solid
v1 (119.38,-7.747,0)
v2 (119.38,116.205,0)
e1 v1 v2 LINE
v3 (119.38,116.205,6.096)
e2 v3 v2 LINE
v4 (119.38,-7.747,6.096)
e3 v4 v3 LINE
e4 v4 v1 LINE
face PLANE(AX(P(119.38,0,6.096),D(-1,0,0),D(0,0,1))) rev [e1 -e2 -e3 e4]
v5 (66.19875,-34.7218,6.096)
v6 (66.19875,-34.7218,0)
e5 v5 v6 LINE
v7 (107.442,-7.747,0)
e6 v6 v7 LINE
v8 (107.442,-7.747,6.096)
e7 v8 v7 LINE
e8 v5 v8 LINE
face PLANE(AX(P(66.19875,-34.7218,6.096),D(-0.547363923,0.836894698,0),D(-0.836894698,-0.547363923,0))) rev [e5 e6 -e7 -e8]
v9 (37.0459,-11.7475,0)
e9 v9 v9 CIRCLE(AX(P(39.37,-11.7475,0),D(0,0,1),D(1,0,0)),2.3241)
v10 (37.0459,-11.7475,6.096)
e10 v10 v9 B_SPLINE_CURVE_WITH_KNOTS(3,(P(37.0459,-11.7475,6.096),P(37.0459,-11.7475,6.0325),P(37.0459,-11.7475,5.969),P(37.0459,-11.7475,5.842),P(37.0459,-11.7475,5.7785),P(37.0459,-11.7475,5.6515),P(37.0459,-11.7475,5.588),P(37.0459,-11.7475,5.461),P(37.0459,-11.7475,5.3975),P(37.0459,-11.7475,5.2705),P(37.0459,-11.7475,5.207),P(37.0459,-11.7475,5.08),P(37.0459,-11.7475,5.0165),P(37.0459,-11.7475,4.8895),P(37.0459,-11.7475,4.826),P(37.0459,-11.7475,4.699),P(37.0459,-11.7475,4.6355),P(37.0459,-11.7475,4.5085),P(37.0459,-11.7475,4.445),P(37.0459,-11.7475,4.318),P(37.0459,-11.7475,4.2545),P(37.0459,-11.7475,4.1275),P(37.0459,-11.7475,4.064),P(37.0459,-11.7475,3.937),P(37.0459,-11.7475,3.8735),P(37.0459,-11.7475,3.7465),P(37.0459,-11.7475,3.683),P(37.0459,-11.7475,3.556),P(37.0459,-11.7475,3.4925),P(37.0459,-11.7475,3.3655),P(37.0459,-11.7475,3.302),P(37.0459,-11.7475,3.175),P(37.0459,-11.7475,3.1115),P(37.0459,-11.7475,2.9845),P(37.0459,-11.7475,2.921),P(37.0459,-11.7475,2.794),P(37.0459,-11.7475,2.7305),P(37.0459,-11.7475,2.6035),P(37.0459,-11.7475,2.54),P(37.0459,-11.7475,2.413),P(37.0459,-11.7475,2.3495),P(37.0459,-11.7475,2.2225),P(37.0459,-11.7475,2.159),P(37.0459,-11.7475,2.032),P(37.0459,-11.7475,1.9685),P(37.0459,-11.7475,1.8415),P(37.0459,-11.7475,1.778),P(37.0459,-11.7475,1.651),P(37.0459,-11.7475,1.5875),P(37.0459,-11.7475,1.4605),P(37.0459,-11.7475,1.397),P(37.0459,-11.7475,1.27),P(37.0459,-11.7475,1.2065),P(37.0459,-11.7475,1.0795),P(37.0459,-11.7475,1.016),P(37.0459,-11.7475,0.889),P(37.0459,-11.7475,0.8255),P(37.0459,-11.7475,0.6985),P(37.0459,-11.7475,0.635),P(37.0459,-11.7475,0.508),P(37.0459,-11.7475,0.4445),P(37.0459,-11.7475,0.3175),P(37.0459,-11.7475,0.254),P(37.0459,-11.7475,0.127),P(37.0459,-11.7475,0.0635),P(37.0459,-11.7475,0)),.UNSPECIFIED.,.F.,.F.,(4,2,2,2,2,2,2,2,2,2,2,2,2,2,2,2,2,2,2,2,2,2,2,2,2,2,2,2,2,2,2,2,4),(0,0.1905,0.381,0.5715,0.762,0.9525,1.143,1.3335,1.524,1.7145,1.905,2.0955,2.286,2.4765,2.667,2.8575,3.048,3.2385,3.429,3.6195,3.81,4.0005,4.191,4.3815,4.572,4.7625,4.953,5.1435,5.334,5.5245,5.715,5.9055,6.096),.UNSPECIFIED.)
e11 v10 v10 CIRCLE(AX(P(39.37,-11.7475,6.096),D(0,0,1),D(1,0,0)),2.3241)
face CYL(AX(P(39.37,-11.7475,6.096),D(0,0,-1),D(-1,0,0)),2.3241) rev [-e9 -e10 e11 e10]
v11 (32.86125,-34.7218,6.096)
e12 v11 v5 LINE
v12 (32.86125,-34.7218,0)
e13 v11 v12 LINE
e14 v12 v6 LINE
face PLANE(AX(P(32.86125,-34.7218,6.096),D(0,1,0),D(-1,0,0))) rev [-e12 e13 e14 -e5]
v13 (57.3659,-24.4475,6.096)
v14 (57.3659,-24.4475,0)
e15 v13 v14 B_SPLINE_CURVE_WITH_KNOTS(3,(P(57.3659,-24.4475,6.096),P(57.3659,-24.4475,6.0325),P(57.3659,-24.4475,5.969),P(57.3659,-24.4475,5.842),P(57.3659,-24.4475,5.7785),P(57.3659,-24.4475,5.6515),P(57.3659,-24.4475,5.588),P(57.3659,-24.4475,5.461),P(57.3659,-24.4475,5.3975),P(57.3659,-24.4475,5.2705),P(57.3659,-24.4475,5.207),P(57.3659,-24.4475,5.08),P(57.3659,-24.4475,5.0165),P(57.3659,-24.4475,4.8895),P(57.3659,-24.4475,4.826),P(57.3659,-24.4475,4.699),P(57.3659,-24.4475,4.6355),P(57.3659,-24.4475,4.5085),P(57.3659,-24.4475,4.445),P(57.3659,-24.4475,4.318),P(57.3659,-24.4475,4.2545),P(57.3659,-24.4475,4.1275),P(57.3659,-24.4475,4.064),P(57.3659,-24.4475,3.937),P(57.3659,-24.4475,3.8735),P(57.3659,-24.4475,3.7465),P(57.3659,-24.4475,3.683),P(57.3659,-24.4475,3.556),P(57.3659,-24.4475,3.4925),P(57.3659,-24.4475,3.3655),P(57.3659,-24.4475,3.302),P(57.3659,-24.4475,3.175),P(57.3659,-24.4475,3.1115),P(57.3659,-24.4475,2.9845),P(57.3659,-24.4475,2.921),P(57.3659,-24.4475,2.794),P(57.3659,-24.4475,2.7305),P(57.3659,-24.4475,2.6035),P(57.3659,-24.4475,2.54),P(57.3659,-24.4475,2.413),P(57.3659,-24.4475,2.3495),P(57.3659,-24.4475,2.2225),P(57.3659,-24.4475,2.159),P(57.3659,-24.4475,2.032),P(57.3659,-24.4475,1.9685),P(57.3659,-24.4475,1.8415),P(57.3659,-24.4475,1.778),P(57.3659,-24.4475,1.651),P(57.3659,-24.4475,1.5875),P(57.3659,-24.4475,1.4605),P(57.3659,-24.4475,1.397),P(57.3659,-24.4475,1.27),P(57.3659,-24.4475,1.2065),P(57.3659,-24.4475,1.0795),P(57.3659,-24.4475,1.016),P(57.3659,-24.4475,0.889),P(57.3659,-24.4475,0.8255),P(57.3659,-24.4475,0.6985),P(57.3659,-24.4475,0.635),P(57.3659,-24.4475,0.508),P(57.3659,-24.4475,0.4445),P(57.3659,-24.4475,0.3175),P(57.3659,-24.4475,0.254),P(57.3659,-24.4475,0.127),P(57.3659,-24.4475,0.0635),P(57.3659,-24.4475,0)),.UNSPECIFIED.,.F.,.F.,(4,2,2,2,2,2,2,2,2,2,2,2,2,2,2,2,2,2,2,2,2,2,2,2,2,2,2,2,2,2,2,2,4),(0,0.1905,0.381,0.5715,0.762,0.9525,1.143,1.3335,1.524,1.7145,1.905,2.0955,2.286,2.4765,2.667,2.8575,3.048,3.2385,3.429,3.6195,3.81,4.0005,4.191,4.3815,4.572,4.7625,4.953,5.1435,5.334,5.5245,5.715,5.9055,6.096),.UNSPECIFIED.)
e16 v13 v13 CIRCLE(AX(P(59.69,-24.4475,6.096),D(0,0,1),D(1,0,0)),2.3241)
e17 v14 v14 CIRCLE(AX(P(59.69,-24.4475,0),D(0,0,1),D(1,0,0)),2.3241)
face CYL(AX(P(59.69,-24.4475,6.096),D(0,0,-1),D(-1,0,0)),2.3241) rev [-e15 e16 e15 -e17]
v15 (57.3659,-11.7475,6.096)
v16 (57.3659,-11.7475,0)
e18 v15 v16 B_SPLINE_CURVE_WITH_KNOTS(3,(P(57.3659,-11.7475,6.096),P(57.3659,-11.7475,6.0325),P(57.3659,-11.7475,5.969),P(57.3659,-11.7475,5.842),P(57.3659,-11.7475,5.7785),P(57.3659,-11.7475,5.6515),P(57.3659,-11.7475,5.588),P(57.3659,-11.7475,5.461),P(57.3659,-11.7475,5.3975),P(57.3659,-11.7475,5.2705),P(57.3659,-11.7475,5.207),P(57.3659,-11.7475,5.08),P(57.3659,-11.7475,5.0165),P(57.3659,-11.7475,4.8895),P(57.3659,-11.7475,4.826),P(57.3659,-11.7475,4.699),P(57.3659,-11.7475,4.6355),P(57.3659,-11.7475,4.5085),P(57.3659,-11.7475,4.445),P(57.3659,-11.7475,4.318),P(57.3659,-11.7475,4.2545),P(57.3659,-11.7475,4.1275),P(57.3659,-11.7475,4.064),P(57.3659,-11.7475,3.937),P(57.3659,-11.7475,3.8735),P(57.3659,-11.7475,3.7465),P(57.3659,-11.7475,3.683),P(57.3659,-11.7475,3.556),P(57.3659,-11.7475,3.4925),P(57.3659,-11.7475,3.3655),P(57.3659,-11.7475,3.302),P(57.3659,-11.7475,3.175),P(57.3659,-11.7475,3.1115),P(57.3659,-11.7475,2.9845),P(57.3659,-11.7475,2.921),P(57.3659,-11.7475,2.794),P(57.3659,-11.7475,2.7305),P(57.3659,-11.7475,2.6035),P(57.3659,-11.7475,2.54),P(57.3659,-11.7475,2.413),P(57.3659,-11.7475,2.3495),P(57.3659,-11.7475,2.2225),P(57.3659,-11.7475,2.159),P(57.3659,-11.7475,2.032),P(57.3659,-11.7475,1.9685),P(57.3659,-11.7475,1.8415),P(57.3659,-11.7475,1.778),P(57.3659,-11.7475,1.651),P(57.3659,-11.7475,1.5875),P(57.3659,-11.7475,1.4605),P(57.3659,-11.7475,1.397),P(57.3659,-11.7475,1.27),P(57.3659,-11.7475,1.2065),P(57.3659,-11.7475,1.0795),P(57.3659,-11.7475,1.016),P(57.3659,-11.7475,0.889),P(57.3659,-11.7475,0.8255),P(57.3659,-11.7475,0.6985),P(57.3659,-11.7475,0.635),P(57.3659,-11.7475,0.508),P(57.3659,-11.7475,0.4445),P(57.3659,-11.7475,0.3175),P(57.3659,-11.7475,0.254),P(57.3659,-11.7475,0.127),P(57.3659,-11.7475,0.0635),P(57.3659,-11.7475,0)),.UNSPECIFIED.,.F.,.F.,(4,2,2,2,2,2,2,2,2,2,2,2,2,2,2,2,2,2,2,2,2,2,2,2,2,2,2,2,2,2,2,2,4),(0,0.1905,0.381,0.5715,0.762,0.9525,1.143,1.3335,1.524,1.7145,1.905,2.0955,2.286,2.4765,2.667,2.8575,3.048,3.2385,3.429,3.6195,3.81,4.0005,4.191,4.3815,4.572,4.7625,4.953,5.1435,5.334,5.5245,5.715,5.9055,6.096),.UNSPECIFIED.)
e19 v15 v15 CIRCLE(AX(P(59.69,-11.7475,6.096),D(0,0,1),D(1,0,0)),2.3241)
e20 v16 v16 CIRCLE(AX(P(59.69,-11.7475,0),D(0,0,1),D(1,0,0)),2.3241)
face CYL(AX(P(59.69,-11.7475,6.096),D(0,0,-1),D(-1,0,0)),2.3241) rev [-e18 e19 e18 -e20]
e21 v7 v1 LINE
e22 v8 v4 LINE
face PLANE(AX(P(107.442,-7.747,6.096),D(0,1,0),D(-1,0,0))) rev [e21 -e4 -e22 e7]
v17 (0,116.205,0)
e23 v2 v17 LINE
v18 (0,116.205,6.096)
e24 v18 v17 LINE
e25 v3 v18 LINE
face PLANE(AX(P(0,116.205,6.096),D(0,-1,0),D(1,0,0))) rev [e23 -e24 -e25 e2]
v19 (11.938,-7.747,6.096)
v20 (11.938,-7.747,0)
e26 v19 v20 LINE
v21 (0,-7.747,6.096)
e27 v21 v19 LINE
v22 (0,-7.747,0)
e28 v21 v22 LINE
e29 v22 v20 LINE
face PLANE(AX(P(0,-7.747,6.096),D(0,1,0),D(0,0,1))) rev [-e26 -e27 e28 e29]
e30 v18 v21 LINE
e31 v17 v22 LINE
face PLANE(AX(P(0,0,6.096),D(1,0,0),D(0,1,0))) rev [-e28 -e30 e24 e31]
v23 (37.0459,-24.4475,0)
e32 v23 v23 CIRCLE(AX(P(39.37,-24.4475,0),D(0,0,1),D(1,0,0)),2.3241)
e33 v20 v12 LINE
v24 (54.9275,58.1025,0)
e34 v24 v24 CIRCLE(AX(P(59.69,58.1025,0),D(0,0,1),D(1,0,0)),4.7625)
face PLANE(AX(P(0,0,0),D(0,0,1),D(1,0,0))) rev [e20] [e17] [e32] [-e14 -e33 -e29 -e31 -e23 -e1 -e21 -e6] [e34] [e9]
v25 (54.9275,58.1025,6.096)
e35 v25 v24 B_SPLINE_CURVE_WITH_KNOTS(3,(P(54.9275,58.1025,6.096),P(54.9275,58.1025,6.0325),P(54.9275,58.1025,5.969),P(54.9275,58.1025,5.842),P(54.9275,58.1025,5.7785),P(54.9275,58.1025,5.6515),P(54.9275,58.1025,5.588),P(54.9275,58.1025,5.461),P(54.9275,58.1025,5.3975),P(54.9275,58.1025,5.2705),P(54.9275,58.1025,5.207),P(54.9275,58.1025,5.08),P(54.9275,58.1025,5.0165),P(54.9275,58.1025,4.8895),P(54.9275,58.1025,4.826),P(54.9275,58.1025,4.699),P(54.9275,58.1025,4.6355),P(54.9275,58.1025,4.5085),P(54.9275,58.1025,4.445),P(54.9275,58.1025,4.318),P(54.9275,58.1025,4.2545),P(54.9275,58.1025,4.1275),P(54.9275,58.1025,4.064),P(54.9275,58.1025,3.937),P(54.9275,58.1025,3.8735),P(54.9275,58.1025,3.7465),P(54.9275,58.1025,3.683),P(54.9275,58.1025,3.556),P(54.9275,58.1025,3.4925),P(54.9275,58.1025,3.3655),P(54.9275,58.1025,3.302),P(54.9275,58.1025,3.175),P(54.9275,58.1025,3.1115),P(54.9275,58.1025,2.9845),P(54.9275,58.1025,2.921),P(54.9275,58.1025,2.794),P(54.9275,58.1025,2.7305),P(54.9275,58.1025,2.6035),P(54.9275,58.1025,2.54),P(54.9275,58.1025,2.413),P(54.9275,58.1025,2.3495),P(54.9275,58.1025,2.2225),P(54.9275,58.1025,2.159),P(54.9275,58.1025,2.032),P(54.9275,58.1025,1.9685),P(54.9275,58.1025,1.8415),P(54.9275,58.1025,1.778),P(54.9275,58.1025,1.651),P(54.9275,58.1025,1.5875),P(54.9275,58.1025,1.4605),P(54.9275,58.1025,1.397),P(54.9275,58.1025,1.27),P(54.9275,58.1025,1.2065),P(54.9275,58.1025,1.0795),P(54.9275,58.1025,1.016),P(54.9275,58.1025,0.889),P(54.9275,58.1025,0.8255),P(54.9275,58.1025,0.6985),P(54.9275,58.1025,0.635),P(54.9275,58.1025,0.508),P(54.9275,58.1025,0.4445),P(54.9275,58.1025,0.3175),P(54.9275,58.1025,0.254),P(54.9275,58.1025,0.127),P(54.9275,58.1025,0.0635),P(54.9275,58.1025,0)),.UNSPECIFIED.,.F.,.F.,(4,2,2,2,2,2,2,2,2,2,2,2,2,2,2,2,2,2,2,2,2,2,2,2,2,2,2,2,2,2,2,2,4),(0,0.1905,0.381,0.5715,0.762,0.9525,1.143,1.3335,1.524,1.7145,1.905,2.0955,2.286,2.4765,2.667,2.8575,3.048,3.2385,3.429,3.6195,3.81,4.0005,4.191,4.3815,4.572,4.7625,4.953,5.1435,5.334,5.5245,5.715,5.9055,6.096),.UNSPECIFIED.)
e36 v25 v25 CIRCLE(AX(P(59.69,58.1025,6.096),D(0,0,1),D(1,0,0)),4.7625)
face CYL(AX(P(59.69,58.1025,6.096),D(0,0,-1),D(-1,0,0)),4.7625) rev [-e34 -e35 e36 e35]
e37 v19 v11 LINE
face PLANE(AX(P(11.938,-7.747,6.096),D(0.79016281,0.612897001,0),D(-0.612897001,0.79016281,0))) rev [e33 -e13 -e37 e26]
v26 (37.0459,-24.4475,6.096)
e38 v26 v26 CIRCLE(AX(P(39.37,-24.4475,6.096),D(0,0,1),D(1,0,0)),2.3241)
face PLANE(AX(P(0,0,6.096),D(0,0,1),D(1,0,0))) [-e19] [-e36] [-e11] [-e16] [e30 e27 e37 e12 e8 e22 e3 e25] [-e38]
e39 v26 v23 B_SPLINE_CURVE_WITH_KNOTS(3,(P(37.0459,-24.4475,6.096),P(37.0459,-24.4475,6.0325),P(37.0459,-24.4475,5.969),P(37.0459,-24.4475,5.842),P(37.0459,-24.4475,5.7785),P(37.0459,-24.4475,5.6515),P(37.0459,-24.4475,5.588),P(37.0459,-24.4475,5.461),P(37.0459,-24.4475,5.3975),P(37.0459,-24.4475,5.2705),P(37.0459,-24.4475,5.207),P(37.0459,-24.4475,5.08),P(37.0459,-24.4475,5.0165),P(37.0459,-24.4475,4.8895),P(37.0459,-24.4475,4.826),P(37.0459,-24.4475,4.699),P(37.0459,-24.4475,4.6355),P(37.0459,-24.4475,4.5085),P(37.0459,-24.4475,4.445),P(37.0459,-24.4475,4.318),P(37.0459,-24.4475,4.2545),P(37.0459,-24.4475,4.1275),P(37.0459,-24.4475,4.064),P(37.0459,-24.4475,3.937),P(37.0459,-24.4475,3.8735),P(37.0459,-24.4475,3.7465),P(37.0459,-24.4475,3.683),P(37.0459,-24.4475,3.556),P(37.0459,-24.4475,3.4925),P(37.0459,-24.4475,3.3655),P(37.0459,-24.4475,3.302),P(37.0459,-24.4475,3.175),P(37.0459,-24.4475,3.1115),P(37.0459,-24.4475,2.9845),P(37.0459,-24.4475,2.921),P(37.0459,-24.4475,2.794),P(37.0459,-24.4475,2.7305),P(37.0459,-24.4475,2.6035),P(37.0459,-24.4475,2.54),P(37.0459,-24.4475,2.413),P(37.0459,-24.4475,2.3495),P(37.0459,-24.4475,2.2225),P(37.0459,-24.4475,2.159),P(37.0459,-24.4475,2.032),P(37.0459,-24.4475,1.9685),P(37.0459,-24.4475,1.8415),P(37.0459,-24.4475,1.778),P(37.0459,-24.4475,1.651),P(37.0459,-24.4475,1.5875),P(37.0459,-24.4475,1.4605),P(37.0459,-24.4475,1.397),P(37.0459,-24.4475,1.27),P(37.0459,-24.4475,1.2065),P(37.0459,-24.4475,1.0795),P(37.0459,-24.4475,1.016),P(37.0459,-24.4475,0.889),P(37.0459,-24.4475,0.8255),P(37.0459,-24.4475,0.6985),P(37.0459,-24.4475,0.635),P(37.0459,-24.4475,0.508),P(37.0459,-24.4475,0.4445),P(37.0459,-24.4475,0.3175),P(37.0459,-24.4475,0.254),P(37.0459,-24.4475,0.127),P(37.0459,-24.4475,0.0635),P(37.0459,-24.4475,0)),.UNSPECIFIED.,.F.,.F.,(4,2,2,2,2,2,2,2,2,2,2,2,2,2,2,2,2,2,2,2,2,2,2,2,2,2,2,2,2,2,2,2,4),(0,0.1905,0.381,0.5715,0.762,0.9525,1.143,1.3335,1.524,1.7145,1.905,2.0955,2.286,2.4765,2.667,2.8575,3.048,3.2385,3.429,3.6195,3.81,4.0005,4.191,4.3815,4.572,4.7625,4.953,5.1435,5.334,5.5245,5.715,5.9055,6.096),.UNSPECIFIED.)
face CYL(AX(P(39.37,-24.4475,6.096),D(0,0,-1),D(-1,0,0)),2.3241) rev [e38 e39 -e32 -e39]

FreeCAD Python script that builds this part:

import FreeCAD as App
import Part
import Sketcher
Q = App.Units.Quantity


def add_polygon(sketch, points):
    """Adds a closed chain of lines whose ends are joined by coincident constraints."""
    first, n = sketch.GeometryCount, len(points)
    for a, b in zip(points, points[1:] + points[:1]):
        sketch.addGeometry(Part.LineSegment(App.Vector(*a, 0), App.Vector(*b, 0)), False)
    for i in range(n):
        sketch.addConstraint(Sketcher.Constraint("Coincident", first + i, 2, first + (i + 1) % n, 1))

doc = App.newDocument("Part")
params = doc.addObject("Spreadsheet::Sheet", "Params")
for row, (alias, value) in enumerate([
    ("sketch1_diameter", "0.183 in"),
    ("sketch1_diameter2", "0.375 in"),
    ("sketch1_width", "4.7 in"),
    ("sketch1_width2", "0.47 in"),
    ("sketch1_height", "4.88 in"),
    ("pad1_length", "0.24 in"),
], start=1):
    params.set(f"A{row}", alias)
    params.set(f"B{row}", "=" + value)
    params.setAlias(f"B{row}", alias)

body = doc.addObject("PartDesign::Body", "Body")

# Sketch on XY plane
sketch1 = body.newObject("Sketcher::SketchObject", "Sketch")
sketch1.AttachmentSupport = (doc.getObject("XY_Plane"), [""])
sketch1.MapMode = "FlatFace"
add_polygon(sketch1, [(0, 116.2), (0, -7.7), (11.9, -7.7), (32.9, -34.7), (66.2, -34.7), (107.4, -7.7), (119.4, -7.7), (119.4, 116.2)])  # lines 0-7
sketch1.addGeometry(Part.Circle(App.Vector(59.7, -24.4, 0), App.Vector(0, 0, 1), 2.3), False)  # 8
sketch1.addGeometry(Part.Circle(App.Vector(59.7, -11.7, 0), App.Vector(0, 0, 1), 2.3), False)  # 9
sketch1.addGeometry(Part.Circle(App.Vector(39.4, -24.4, 0), App.Vector(0, 0, 1), 2.3), False)  # 10
sketch1.addGeometry(Part.Circle(App.Vector(39.4, -11.7, 0), App.Vector(0, 0, 1), 2.3), False)  # 11
sketch1.addGeometry(Part.Circle(App.Vector(59.7, 58.1, 0), App.Vector(0, 0, 1), 4.8), False)  # 12
sketch1.addConstraint(Sketcher.Constraint("Vertical", 0))
sketch1.addConstraint(Sketcher.Constraint("Horizontal", 1))
sketch1.addConstraint(Sketcher.Constraint("Horizontal", 3))
sketch1.addConstraint(Sketcher.Constraint("Horizontal", 5))
sketch1.addConstraint(Sketcher.Constraint("Vertical", 6))
sketch1.addConstraint(Sketcher.Constraint("Horizontal", 7))
sketch1.addConstraint(Sketcher.Constraint("Equal", 8, 9))
sketch1.addConstraint(Sketcher.Constraint("Equal", 9, 10))
sketch1.addConstraint(Sketcher.Constraint("Equal", 10, 11))
sketch1.addConstraint(Sketcher.Constraint("PointOnObject", 0, 2, -2))
sketch1.addConstraint(Sketcher.Constraint("Horizontal", 8, 3, 10, 3))
sketch1.addConstraint(Sketcher.Constraint("Horizontal", 9, 3, 11, 3))
sketch1.addConstraint(Sketcher.Constraint("Horizontal", 1, 2, 4, 2))
sketch1.addConstraint(Sketcher.Constraint("Vertical", 8, 3, 9, 3))
sketch1.addConstraint(Sketcher.Constraint("Vertical", 10, 3, 11, 3))
sketch1.addConstraint(Sketcher.Constraint("Vertical", 9, 3, 12, 3))
sketch1.addConstraint(Sketcher.Constraint("Equal", 1, 5))
sketch1.addConstraint(Sketcher.Constraint("Diameter", 8, Q("0.183 in")))
sketch1.addConstraint(Sketcher.Constraint("Diameter", 12, Q("0.375 in")))
sketch1.addConstraint(Sketcher.Constraint("DistanceX", 7, 2, 7, 1, Q("4.7 in")))
sketch1.addConstraint(Sketcher.Constraint("DistanceX", 1, 1, 1, 2, Q("0.47 in")))
sketch1.addConstraint(Sketcher.Constraint("DistanceY", 0, 2, 0, 1, Q("4.88 in")))
sketch1.addConstraint(Sketcher.Constraint("DistanceY", 8, 3, 9, 3, Q("0.5 in")))
sketch1.addConstraint(Sketcher.Constraint("DistanceX", 10, 3, 8, 3, Q("0.8 in")))
sketch1.addConstraint(Sketcher.Constraint("DistanceX", 3, 1, 3, 2, Q("1.3125 in")))
sketch1.addConstraint(Sketcher.Constraint("DistanceX", -1, 1, 8, 3, Q("2.35 in")))
sketch1.addConstraint(Sketcher.Constraint("DistanceY", 9, 3, 12, 3, Q("2.75 in")))
sketch1.addConstraint(Sketcher.Constraint("DistanceY", 0, 2, -1, 1, Q("0.305 in")))
sketch1.addConstraint(Sketcher.Constraint("DistanceY", 2, 2, -1, 1, Q("1.367 in")))
sketch1.addConstraint(Sketcher.Constraint("DistanceX", 3, 2, 5, 2, Q("2.09375 in")))
sketch1.addConstraint(Sketcher.Constraint("DistanceY", 8, 3, -1, 1, Q("0.9625 in")))
sketch1.setExpression("Constraints[25]", "Params.sketch1_diameter")
sketch1.setExpression("Constraints[26]", "Params.sketch1_diameter2")
sketch1.setExpression("Constraints[27]", "Params.sketch1_width")
sketch1.setExpression("Constraints[28]", "Params.sketch1_width2")
sketch1.setExpression("Constraints[29]", "Params.sketch1_height")
pad1 = body.newObject("PartDesign::Pad", "Pad")
pad1.Profile = sketch1
pad1.setExpression("Length", "Params.pad1_length")

doc.recompute()
